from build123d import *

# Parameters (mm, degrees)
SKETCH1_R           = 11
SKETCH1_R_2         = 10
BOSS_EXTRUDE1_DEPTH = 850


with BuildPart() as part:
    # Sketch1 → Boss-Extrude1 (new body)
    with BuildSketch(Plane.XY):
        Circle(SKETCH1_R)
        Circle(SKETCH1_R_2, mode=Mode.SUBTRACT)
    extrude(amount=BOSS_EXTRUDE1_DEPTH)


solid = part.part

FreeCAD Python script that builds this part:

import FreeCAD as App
import Part
import Sketcher
from FreeCAD import Vector

doc = App.newDocument("Part")
body = doc.addObject("PartDesign::Body", "Body")

# Sketch on XY plane
sketch1 = body.newObject("Sketcher::SketchObject", "Sketch")
sketch1.AttachmentSupport = (doc.getObject("XY_Plane"), [""])
sketch1.MapMode = "FlatFace"
sketch1.addGeometry(Part.Circle(Vector(0, 0, 0), Vector(0, 0, 1), 11), False)
sketch1.addGeometry(Part.Circle(Vector(0, 0, 0), Vector(0, 0, 1), 10), False)
sketch1.addConstraint(Sketcher.Constraint("Coincident", 0, 3, -1, 1))
sketch1.addConstraint(Sketcher.Constraint("Coincident", 1, 3, -1, 1))
sketch1.addConstraint(Sketcher.Constraint("Diameter", 0, 22.0))
sketch1.addConstraint(Sketcher.Constraint("Diameter", 1, 20.0))
pad1 = body.newObject("PartDesign::Pad", "Pad")
pad1.Profile = sketch1
pad1.Length = 850

doc.recompute()
